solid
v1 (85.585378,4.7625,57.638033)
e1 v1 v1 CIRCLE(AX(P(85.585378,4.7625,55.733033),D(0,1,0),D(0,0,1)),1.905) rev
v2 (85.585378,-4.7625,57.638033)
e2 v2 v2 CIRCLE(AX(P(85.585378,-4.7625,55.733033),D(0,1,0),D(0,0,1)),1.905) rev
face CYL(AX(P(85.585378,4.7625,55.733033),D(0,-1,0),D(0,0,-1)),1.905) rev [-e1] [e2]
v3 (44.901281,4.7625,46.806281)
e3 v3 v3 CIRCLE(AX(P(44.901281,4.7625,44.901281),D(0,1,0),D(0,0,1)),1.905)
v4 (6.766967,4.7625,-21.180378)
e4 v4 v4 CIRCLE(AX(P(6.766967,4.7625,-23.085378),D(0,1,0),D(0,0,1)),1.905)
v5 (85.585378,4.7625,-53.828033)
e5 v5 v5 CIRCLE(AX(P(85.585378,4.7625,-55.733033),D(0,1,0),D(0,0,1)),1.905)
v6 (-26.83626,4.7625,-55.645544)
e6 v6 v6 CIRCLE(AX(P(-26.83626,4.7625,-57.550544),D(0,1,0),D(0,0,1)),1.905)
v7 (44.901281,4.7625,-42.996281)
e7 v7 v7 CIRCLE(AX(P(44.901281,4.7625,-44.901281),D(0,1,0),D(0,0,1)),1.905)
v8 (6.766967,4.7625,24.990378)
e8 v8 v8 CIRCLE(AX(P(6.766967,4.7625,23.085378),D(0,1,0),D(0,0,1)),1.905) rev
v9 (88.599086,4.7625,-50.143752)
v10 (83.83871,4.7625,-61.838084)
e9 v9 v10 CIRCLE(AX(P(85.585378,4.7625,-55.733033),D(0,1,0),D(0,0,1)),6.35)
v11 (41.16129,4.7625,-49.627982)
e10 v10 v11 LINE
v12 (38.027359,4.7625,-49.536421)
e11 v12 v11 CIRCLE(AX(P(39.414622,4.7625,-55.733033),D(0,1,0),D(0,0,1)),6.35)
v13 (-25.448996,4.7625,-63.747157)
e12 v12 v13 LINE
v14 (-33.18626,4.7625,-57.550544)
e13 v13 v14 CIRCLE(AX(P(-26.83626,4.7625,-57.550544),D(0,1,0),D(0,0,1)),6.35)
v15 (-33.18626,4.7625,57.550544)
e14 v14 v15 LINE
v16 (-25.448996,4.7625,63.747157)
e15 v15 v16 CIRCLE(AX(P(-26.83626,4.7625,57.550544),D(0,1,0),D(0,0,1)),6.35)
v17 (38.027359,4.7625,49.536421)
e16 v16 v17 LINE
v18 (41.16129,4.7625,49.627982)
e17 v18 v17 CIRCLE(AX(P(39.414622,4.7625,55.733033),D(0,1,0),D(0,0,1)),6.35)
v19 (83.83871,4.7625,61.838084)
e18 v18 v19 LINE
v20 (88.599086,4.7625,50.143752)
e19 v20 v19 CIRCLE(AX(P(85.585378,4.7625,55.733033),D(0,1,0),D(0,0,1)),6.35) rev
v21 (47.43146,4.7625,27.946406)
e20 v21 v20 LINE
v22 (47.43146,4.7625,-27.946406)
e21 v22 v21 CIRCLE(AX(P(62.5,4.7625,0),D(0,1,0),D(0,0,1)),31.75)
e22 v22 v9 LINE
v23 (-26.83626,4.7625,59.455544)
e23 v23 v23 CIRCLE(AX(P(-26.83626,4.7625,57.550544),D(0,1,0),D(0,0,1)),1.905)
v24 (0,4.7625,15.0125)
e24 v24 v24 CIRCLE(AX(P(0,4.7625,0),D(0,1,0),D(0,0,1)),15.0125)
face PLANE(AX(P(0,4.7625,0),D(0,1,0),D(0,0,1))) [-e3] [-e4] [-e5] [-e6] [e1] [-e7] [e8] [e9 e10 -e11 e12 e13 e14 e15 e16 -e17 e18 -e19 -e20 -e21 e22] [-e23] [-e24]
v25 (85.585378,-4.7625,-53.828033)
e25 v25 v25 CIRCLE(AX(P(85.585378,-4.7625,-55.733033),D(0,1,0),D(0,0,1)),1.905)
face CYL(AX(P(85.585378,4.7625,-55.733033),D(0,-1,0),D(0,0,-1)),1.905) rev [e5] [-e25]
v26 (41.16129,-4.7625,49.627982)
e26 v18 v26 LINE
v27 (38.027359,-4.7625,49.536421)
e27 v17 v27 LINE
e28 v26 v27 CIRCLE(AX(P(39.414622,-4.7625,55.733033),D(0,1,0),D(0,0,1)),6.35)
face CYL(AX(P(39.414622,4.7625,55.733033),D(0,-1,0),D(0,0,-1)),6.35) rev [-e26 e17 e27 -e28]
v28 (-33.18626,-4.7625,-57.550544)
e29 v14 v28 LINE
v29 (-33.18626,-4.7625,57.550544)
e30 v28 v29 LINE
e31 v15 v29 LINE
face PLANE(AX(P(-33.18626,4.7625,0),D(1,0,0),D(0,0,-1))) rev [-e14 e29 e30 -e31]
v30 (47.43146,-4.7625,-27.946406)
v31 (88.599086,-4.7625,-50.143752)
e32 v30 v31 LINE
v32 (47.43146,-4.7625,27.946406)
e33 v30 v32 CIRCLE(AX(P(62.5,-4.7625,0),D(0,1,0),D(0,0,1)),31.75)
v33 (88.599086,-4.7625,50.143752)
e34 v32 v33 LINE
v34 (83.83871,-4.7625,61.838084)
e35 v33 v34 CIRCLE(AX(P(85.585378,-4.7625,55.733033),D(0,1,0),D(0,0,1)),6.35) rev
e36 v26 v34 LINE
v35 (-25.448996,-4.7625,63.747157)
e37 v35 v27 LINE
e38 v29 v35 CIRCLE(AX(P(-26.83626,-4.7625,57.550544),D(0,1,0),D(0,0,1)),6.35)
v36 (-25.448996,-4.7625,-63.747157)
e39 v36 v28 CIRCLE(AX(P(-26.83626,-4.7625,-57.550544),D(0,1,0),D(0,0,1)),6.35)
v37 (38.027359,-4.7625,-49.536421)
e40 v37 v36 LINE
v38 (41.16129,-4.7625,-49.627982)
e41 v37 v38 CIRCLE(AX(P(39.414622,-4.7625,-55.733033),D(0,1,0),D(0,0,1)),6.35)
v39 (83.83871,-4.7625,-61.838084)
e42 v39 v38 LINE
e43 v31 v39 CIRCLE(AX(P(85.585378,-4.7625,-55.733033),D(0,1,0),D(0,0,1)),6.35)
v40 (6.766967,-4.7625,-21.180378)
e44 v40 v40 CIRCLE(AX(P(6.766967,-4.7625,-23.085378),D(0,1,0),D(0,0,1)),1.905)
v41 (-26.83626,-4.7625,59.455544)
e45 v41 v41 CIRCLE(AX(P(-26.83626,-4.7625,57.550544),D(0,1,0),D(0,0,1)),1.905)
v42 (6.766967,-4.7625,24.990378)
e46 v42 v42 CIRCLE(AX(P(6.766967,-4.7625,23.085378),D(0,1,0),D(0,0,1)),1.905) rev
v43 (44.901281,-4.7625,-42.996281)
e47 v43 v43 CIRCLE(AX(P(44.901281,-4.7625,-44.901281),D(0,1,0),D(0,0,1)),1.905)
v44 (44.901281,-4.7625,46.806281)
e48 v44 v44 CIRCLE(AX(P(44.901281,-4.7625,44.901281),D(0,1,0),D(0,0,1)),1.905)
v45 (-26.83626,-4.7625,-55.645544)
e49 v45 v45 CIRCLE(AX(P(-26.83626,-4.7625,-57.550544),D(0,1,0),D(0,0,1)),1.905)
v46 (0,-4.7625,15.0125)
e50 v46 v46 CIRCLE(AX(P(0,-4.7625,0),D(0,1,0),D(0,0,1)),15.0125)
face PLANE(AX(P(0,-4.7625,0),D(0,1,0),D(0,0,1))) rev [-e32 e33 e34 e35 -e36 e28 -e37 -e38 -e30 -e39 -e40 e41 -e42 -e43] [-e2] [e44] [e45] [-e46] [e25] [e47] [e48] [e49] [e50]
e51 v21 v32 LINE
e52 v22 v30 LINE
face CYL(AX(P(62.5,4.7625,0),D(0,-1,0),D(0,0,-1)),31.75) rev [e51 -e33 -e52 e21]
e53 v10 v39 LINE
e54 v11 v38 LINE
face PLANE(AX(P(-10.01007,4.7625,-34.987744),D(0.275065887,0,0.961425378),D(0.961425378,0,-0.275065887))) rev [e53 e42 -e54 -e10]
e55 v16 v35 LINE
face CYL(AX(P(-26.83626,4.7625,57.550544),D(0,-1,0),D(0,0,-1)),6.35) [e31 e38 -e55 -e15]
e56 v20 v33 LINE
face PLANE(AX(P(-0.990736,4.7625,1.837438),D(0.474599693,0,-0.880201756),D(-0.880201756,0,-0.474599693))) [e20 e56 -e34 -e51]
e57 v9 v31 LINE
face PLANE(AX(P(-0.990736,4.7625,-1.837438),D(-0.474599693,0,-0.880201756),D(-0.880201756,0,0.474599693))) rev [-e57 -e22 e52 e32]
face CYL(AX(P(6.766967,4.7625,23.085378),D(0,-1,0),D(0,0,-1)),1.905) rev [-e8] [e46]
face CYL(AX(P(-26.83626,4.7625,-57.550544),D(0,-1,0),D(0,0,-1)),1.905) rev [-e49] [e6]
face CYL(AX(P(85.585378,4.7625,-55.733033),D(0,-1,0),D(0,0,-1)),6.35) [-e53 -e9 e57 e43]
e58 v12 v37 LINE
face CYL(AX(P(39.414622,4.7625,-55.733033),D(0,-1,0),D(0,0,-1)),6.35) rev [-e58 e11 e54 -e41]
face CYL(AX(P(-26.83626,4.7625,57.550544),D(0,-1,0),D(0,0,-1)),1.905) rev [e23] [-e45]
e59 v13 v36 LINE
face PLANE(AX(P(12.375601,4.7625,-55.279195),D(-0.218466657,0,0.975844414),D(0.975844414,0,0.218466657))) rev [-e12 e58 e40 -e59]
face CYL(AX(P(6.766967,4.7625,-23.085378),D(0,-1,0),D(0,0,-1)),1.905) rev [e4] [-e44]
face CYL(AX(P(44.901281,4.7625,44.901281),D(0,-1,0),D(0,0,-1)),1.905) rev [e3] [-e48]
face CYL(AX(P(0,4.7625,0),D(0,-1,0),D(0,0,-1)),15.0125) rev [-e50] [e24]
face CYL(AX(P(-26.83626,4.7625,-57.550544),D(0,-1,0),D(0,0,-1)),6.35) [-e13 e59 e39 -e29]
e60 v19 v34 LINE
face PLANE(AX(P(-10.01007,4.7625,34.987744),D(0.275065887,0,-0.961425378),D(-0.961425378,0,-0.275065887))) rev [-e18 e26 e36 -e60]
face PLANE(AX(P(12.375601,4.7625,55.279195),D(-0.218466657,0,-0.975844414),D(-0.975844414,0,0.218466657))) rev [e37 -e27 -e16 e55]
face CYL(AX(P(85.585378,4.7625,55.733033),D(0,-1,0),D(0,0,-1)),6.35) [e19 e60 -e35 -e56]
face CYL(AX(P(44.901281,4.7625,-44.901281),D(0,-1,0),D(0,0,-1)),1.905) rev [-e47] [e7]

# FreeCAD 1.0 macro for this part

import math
import FreeCAD as App
import Part
import Sketcher

V = App.Vector
Q = App.Units.Quantity

doc = App.newDocument("Part")
params = doc.addObject("Spreadsheet::Sheet", "Params")
for row, (alias, value) in enumerate([
    ("sketch1_diameter", "0.15 in"),
    ("sketch1_radius", "0.25 in"),
    ("sketch1_radius2", "1.25 in"),
    ("pad1_length", "0.375 in"),
], start=1):
    params.set(f"A{row}", alias)
    params.set(f"B{row}", "=" + value)
    params.setAlias(f"B{row}", alias)

body = doc.addObject("PartDesign::Body", "Body")

sketch1 = body.newObject("Sketcher::SketchObject", "Sketch")
sketch1.AttachmentSupport = (doc.getObject("XZ_Plane"), [""])
sketch1.MapMode = "FlatFace"
sketch1.addGeometry(Part.LineSegment(V(47.4, -27.9, 0), V(88.6, -50.1, 0)), False)
sketch1.addGeometry(Part.ArcOfCircle(Part.Circle(V(85.6, -55.7, 0), V(0, 0, 1), 6.3), math.radians(-106), math.radians(62)), False)
sketch1.addGeometry(Part.LineSegment(V(83.8, -61.8, 0), V(41.2, -49.6, 0)), False)
sketch1.addGeometry(Part.ArcOfCircle(Part.Circle(V(39.4, -55.7, 0), V(0, 0, 1), 6.3), math.radians(74), math.radians(103)), False)
sketch1.addGeometry(Part.LineSegment(V(38, -49.5, 0), V(-25.4, -63.7, 0)), False)
sketch1.addGeometry(Part.ArcOfCircle(Part.Circle(V(-26.8, -57.6, 0), V(0, 0, 1), 6.4), math.radians(-180), math.radians(-77)), False)
sketch1.addGeometry(Part.LineSegment(V(-33.2, -57.6, 0), V(-33.2, 57.6, 0)), False)
sketch1.addGeometry(Part.ArcOfCircle(Part.Circle(V(-26.8, 57.6, 0), V(0, 0, 1), 6.4), math.radians(77), math.radians(180)), False)
sketch1.addGeometry(Part.LineSegment(V(-25.4, 63.7, 0), V(38, 49.5, 0)), False)
sketch1.addGeometry(Part.ArcOfCircle(Part.Circle(V(39.4, 55.7, 0), V(0, 0, 1), 6.3), math.radians(-103), math.radians(-74)), False)
sketch1.addGeometry(Part.LineSegment(V(41.2, 49.6, 0), V(83.8, 61.8, 0)), False)
sketch1.addGeometry(Part.ArcOfCircle(Part.Circle(V(85.6, 55.7, 0), V(0, 0, 1), 6.3), math.radians(-62), math.radians(106)), False)
sketch1.addGeometry(Part.LineSegment(V(88.6, 50.1, 0), V(47.4, 27.9, 0)), False)
sketch1.addGeometry(Part.ArcOfCircle(Part.Circle(V(62.5, 0, 0), V(0, 0, 1), 31.8), math.radians(118), math.radians(242)), False)
sketch1.addGeometry(Part.Circle(V(-26.8, 57.6, 0), V(0, 0, 1), 1.9), False)
sketch1.addGeometry(Part.Circle(V(6.8, 23.1, 0), V(0, 0, 1), 1.9), False)
sketch1.addGeometry(Part.Circle(V(44.9, 44.9, 0), V(0, 0, 1), 1.9), False)
sketch1.addGeometry(Part.Circle(V(85.6, 55.7, 0), V(0, 0, 1), 1.9), False)
sketch1.addGeometry(Part.Circle(V(0, 0, 0), V(0, 0, 1), 15), False)
sketch1.addGeometry(Part.Circle(V(6.8, -23.1, 0), V(0, 0, 1), 1.9), False)
sketch1.addGeometry(Part.Circle(V(-26.8, -57.6, 0), V(0, 0, 1), 1.9), False)
sketch1.addGeometry(Part.Circle(V(44.9, -44.9, 0), V(0, 0, 1), 1.9), False)
sketch1.addGeometry(Part.Circle(V(85.6, -55.7, 0), V(0, 0, 1), 1.9), False)
sketch1.addConstraint(Sketcher.Constraint("Tangent", 0, 2, 1, 2))
sketch1.addConstraint(Sketcher.Constraint("Tangent", 1, 1, 2, 1))
sketch1.addConstraint(Sketcher.Constraint("Tangent", 2, 2, 3, 1))
sketch1.addConstraint(Sketcher.Constraint("Tangent", 3, 2, 4, 1))
sketch1.addConstraint(Sketcher.Constraint("Tangent", 4, 2, 5, 2))
sketch1.addConstraint(Sketcher.Constraint("Tangent", 5, 1, 6, 1))
sketch1.addConstraint(Sketcher.Constraint("Tangent", 6, 2, 7, 2))
sketch1.addConstraint(Sketcher.Constraint("Tangent", 7, 1, 8, 1))
sketch1.addConstraint(Sketcher.Constraint("Tangent", 8, 2, 9, 1))
sketch1.addConstraint(Sketcher.Constraint("Tangent", 9, 2, 10, 1))
sketch1.addConstraint(Sketcher.Constraint("Tangent", 10, 2, 11, 2))
sketch1.addConstraint(Sketcher.Constraint("Tangent", 11, 1, 12, 1))
sketch1.addConstraint(Sketcher.Constraint("Tangent", 12, 2, 13, 1))
sketch1.addConstraint(Sketcher.Constraint("Tangent", 13, 2, 0, 1))
sketch1.addConstraint(Sketcher.Constraint("Vertical", 6))
sketch1.addConstraint(Sketcher.Constraint("Coincident", 18, 3, -1, 1))
sketch1.addConstraint(Sketcher.Constraint("Coincident", 14, 3, 7, 3))
sketch1.addConstraint(Sketcher.Constraint("Coincident", 17, 3, 11, 3))
sketch1.addConstraint(Sketcher.Constraint("Coincident", 20, 3, 5, 3))
sketch1.addConstraint(Sketcher.Constraint("Coincident", 22, 3, 1, 3))
sketch1.addConstraint(Sketcher.Constraint("Equal", 1, 3))
sketch1.addConstraint(Sketcher.Constraint("Equal", 3, 5))
sketch1.addConstraint(Sketcher.Constraint("Equal", 5, 7))
sketch1.addConstraint(Sketcher.Constraint("Equal", 7, 9))
sketch1.addConstraint(Sketcher.Constraint("Equal", 9, 11))
sketch1.addConstraint(Sketcher.Constraint("Equal", 14, 15))
sketch1.addConstraint(Sketcher.Constraint("Equal", 15, 16))
sketch1.addConstraint(Sketcher.Constraint("Equal", 16, 17))
sketch1.addConstraint(Sketcher.Constraint("Equal", 17, 19))
sketch1.addConstraint(Sketcher.Constraint("Equal", 19, 20))
sketch1.addConstraint(Sketcher.Constraint("Equal", 20, 21))
sketch1.addConstraint(Sketcher.Constraint("Equal", 21, 22))
sketch1.addConstraint(Sketcher.Constraint("Symmetric", 3, 3, 9, 3, -1))
sketch1.addConstraint(Sketcher.Constraint("Symmetric", 1, 3, 11, 3, -1))
sketch1.addConstraint(Sketcher.Constraint("Symmetric", 15, 3, 19, 3, -1))
sketch1.addConstraint(Sketcher.Constraint("Symmetric", 16, 3, 21, 3, -1))
sketch1.addConstraint(Sketcher.Constraint("PointOnObject", 13, 3, -1))
sketch1.addConstraint(Sketcher.Constraint("Horizontal", 1, 3, 3, 3))
sketch1.addConstraint(Sketcher.Constraint("Vertical", 4, 2, 7, 1))
sketch1.addConstraint(Sketcher.Constraint("Diameter", 14, Q("0.15 in")))
sketch1.addConstraint(Sketcher.Constraint("Radius", 1, Q("0.25 in")))
sketch1.addConstraint(Sketcher.Constraint("Radius", 13, Q("1.25 in")))
sketch1.addConstraint(Sketcher.Constraint("Diameter", 18, 30.025))
sketch1.addConstraint(Sketcher.Constraint("DistanceY", 6, 1, 6, 2, 115.101089))
sketch1.addConstraint(Sketcher.Constraint("DistanceX", -1, 1, 13, 3, 62.5))
sketch1.addConstraint(Sketcher.Constraint("DistanceY", 2, 2, 21, 3, 4.726701))
sketch1.addConstraint(Sketcher.Constraint("DistanceX", 8, 2, 12, 2, 9.404101))
sketch1.addConstraint(Sketcher.Constraint("Distance", 0, 46.770671))
sketch1.addConstraint(Sketcher.Constraint("Distance", 4, 65.047618))
sketch1.addConstraint(Sketcher.Constraint("DistanceX", -1, 1, 1, 3, 85.585378))
sketch1.addConstraint(Sketcher.Constraint("DistanceY", -1, 1, 15, 3, 23.085378))
sketch1.addConstraint(Sketcher.Constraint("DistanceX", -1, 1, 16, 3, 44.901281))
sketch1.addConstraint(Sketcher.Constraint("DistanceX", 15, 3, 17, 3, 78.818411))
sketch1.setExpression("Constraints[39]", "Params.sketch1_diameter")
sketch1.setExpression("Constraints[40]", "Params.sketch1_radius")
sketch1.setExpression("Constraints[41]", "Params.sketch1_radius2")
pad1 = body.newObject("PartDesign::Pad", "Pad")
pad1.Profile = sketch1
pad1.setExpression("Length", "Params.pad1_length")
pad1.Midplane = True

doc.recompute()
